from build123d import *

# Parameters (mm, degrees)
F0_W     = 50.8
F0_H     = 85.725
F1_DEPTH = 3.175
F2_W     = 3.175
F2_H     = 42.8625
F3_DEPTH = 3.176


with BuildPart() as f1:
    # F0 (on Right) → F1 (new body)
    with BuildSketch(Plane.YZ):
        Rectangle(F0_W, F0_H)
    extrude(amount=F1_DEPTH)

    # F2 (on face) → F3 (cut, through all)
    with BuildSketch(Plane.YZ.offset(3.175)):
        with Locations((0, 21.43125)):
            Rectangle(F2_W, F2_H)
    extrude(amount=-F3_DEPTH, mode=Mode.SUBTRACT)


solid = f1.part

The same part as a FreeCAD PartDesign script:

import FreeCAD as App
import Part
import Sketcher
from FreeCAD import Vector
Q = App.Units.Quantity

doc = App.newDocument("Part")
params = doc.addObject("Spreadsheet::Sheet", "Params")
for row, (alias, value) in enumerate([
    ("sketch1_width", "2 in"),
    ("sketch1_height", "3.375 in"),
    ("pad1_length", "0.125 in"),
    ("sketch2_width", "0.125 in"),
    ("sketch2_height", "1.6875 in"),
], start=1):
    params.set(f"A{row}", alias)
    params.set(f"B{row}", "=" + value)
    params.setAlias(f"B{row}", alias)

body = doc.addObject("PartDesign::Body", "Body")

# Sketch on YZ plane
sketch1 = doc.addObject("Sketcher::SketchObject", "Sketch")
body.addObject(sketch1)
sketch1.AttachmentSupport = (doc.YZ_Plane, [""])
sketch1.MapMode = "FlatFace"
sketch1.addGeometry([
    Part.LineSegment(Vector(-25.4, 42.8625, 0), Vector(-25.4, -42.8625, 0)),
    Part.LineSegment(Vector(-25.4, -42.8625, 0), Vector(25.4, -42.8625, 0)),
    Part.LineSegment(Vector(25.4, -42.8625, 0), Vector(25.4, 42.8625, 0)),
    Part.LineSegment(Vector(25.4, 42.8625, 0), Vector(-25.4, 42.8625, 0)),
], False)
sketch1.addConstraint([
    Sketcher.Constraint("Coincident", 0, 2, 1, 1),
    Sketcher.Constraint("Coincident", 1, 2, 2, 1),
    Sketcher.Constraint("Coincident", 2, 2, 3, 1),
    Sketcher.Constraint("Coincident", 3, 2, 0, 1),
    Sketcher.Constraint("Vertical", 0),
    Sketcher.Constraint("Horizontal", 1),
    Sketcher.Constraint("Vertical", 2),
    Sketcher.Constraint("Horizontal", 3),
    Sketcher.Constraint("Symmetric", 0, 2, 2, 2, -1, 1),
    Sketcher.Constraint("DistanceX", 1, 1, 1, 2, Q("2 in")),
    Sketcher.Constraint("DistanceY", 0, 2, 0, 1, Q("3.375 in")),
])
sketch1.setExpression("Constraints[9]", "Params.sketch1_width")
sketch1.setExpression("Constraints[10]", "Params.sketch1_height")
pad1 = doc.addObject("PartDesign::Pad", "Pad")
body.addObject(pad1)
pad1.Profile = sketch1
pad1.setExpression("Length", "Params.pad1_length")

# Sketch on YZ plane
sketch2 = doc.addObject("Sketcher::SketchObject", "Sketch001")
body.addObject(sketch2)
sketch2.AttachmentSupport = (doc.YZ_Plane, [""])
sketch2.MapMode = "FlatFace"
sketch2.AttachmentOffset = App.Placement(Vector(0, 0, 0.125 * 25.4), App.Rotation())
sketch2.addGeometry([
    Part.LineSegment(Vector(-1.5875, 42.8625, 0), Vector(-1.5875, 0, 0)),
    Part.LineSegment(Vector(-1.5875, 0, 0), Vector(1.5875, 0, 0)),
    Part.LineSegment(Vector(1.5875, 0, 0), Vector(1.5875, 42.8625, 0)),
    Part.LineSegment(Vector(1.5875, 42.8625, 0), Vector(-1.5875, 42.8625, 0)),
], False)
sketch2.addConstraint([
    Sketcher.Constraint("Coincident", 0, 2, 1, 1),
    Sketcher.Constraint("Coincident", 1, 2, 2, 1),
    Sketcher.Constraint("Coincident", 2, 2, 3, 1),
    Sketcher.Constraint("Coincident", 3, 2, 0, 1),
    Sketcher.Constraint("Vertical", 0),
    Sketcher.Constraint("Horizontal", 1),
    Sketcher.Constraint("Vertical", 2),
    Sketcher.Constraint("Horizontal", 3),
    Sketcher.Constraint("Symmetric", 0, 2, 1, 2, -1, 1),
    Sketcher.Constraint("DistanceX", 1, 1, 1, 2, Q("0.125 in")),
    Sketcher.Constraint("DistanceY", 0, 2, 0, 1, Q("1.6875 in")),
])
sketch2.setExpression("Constraints[9]", "Params.sketch2_width")
sketch2.setExpression("Constraints[10]", "Params.sketch2_height")
pocket1 = doc.addObject("PartDesign::Pocket", "Pocket")
body.addObject(pocket1)
pocket1.Profile = sketch2
pocket1.Type = "ThroughAll"

doc.recompute()
